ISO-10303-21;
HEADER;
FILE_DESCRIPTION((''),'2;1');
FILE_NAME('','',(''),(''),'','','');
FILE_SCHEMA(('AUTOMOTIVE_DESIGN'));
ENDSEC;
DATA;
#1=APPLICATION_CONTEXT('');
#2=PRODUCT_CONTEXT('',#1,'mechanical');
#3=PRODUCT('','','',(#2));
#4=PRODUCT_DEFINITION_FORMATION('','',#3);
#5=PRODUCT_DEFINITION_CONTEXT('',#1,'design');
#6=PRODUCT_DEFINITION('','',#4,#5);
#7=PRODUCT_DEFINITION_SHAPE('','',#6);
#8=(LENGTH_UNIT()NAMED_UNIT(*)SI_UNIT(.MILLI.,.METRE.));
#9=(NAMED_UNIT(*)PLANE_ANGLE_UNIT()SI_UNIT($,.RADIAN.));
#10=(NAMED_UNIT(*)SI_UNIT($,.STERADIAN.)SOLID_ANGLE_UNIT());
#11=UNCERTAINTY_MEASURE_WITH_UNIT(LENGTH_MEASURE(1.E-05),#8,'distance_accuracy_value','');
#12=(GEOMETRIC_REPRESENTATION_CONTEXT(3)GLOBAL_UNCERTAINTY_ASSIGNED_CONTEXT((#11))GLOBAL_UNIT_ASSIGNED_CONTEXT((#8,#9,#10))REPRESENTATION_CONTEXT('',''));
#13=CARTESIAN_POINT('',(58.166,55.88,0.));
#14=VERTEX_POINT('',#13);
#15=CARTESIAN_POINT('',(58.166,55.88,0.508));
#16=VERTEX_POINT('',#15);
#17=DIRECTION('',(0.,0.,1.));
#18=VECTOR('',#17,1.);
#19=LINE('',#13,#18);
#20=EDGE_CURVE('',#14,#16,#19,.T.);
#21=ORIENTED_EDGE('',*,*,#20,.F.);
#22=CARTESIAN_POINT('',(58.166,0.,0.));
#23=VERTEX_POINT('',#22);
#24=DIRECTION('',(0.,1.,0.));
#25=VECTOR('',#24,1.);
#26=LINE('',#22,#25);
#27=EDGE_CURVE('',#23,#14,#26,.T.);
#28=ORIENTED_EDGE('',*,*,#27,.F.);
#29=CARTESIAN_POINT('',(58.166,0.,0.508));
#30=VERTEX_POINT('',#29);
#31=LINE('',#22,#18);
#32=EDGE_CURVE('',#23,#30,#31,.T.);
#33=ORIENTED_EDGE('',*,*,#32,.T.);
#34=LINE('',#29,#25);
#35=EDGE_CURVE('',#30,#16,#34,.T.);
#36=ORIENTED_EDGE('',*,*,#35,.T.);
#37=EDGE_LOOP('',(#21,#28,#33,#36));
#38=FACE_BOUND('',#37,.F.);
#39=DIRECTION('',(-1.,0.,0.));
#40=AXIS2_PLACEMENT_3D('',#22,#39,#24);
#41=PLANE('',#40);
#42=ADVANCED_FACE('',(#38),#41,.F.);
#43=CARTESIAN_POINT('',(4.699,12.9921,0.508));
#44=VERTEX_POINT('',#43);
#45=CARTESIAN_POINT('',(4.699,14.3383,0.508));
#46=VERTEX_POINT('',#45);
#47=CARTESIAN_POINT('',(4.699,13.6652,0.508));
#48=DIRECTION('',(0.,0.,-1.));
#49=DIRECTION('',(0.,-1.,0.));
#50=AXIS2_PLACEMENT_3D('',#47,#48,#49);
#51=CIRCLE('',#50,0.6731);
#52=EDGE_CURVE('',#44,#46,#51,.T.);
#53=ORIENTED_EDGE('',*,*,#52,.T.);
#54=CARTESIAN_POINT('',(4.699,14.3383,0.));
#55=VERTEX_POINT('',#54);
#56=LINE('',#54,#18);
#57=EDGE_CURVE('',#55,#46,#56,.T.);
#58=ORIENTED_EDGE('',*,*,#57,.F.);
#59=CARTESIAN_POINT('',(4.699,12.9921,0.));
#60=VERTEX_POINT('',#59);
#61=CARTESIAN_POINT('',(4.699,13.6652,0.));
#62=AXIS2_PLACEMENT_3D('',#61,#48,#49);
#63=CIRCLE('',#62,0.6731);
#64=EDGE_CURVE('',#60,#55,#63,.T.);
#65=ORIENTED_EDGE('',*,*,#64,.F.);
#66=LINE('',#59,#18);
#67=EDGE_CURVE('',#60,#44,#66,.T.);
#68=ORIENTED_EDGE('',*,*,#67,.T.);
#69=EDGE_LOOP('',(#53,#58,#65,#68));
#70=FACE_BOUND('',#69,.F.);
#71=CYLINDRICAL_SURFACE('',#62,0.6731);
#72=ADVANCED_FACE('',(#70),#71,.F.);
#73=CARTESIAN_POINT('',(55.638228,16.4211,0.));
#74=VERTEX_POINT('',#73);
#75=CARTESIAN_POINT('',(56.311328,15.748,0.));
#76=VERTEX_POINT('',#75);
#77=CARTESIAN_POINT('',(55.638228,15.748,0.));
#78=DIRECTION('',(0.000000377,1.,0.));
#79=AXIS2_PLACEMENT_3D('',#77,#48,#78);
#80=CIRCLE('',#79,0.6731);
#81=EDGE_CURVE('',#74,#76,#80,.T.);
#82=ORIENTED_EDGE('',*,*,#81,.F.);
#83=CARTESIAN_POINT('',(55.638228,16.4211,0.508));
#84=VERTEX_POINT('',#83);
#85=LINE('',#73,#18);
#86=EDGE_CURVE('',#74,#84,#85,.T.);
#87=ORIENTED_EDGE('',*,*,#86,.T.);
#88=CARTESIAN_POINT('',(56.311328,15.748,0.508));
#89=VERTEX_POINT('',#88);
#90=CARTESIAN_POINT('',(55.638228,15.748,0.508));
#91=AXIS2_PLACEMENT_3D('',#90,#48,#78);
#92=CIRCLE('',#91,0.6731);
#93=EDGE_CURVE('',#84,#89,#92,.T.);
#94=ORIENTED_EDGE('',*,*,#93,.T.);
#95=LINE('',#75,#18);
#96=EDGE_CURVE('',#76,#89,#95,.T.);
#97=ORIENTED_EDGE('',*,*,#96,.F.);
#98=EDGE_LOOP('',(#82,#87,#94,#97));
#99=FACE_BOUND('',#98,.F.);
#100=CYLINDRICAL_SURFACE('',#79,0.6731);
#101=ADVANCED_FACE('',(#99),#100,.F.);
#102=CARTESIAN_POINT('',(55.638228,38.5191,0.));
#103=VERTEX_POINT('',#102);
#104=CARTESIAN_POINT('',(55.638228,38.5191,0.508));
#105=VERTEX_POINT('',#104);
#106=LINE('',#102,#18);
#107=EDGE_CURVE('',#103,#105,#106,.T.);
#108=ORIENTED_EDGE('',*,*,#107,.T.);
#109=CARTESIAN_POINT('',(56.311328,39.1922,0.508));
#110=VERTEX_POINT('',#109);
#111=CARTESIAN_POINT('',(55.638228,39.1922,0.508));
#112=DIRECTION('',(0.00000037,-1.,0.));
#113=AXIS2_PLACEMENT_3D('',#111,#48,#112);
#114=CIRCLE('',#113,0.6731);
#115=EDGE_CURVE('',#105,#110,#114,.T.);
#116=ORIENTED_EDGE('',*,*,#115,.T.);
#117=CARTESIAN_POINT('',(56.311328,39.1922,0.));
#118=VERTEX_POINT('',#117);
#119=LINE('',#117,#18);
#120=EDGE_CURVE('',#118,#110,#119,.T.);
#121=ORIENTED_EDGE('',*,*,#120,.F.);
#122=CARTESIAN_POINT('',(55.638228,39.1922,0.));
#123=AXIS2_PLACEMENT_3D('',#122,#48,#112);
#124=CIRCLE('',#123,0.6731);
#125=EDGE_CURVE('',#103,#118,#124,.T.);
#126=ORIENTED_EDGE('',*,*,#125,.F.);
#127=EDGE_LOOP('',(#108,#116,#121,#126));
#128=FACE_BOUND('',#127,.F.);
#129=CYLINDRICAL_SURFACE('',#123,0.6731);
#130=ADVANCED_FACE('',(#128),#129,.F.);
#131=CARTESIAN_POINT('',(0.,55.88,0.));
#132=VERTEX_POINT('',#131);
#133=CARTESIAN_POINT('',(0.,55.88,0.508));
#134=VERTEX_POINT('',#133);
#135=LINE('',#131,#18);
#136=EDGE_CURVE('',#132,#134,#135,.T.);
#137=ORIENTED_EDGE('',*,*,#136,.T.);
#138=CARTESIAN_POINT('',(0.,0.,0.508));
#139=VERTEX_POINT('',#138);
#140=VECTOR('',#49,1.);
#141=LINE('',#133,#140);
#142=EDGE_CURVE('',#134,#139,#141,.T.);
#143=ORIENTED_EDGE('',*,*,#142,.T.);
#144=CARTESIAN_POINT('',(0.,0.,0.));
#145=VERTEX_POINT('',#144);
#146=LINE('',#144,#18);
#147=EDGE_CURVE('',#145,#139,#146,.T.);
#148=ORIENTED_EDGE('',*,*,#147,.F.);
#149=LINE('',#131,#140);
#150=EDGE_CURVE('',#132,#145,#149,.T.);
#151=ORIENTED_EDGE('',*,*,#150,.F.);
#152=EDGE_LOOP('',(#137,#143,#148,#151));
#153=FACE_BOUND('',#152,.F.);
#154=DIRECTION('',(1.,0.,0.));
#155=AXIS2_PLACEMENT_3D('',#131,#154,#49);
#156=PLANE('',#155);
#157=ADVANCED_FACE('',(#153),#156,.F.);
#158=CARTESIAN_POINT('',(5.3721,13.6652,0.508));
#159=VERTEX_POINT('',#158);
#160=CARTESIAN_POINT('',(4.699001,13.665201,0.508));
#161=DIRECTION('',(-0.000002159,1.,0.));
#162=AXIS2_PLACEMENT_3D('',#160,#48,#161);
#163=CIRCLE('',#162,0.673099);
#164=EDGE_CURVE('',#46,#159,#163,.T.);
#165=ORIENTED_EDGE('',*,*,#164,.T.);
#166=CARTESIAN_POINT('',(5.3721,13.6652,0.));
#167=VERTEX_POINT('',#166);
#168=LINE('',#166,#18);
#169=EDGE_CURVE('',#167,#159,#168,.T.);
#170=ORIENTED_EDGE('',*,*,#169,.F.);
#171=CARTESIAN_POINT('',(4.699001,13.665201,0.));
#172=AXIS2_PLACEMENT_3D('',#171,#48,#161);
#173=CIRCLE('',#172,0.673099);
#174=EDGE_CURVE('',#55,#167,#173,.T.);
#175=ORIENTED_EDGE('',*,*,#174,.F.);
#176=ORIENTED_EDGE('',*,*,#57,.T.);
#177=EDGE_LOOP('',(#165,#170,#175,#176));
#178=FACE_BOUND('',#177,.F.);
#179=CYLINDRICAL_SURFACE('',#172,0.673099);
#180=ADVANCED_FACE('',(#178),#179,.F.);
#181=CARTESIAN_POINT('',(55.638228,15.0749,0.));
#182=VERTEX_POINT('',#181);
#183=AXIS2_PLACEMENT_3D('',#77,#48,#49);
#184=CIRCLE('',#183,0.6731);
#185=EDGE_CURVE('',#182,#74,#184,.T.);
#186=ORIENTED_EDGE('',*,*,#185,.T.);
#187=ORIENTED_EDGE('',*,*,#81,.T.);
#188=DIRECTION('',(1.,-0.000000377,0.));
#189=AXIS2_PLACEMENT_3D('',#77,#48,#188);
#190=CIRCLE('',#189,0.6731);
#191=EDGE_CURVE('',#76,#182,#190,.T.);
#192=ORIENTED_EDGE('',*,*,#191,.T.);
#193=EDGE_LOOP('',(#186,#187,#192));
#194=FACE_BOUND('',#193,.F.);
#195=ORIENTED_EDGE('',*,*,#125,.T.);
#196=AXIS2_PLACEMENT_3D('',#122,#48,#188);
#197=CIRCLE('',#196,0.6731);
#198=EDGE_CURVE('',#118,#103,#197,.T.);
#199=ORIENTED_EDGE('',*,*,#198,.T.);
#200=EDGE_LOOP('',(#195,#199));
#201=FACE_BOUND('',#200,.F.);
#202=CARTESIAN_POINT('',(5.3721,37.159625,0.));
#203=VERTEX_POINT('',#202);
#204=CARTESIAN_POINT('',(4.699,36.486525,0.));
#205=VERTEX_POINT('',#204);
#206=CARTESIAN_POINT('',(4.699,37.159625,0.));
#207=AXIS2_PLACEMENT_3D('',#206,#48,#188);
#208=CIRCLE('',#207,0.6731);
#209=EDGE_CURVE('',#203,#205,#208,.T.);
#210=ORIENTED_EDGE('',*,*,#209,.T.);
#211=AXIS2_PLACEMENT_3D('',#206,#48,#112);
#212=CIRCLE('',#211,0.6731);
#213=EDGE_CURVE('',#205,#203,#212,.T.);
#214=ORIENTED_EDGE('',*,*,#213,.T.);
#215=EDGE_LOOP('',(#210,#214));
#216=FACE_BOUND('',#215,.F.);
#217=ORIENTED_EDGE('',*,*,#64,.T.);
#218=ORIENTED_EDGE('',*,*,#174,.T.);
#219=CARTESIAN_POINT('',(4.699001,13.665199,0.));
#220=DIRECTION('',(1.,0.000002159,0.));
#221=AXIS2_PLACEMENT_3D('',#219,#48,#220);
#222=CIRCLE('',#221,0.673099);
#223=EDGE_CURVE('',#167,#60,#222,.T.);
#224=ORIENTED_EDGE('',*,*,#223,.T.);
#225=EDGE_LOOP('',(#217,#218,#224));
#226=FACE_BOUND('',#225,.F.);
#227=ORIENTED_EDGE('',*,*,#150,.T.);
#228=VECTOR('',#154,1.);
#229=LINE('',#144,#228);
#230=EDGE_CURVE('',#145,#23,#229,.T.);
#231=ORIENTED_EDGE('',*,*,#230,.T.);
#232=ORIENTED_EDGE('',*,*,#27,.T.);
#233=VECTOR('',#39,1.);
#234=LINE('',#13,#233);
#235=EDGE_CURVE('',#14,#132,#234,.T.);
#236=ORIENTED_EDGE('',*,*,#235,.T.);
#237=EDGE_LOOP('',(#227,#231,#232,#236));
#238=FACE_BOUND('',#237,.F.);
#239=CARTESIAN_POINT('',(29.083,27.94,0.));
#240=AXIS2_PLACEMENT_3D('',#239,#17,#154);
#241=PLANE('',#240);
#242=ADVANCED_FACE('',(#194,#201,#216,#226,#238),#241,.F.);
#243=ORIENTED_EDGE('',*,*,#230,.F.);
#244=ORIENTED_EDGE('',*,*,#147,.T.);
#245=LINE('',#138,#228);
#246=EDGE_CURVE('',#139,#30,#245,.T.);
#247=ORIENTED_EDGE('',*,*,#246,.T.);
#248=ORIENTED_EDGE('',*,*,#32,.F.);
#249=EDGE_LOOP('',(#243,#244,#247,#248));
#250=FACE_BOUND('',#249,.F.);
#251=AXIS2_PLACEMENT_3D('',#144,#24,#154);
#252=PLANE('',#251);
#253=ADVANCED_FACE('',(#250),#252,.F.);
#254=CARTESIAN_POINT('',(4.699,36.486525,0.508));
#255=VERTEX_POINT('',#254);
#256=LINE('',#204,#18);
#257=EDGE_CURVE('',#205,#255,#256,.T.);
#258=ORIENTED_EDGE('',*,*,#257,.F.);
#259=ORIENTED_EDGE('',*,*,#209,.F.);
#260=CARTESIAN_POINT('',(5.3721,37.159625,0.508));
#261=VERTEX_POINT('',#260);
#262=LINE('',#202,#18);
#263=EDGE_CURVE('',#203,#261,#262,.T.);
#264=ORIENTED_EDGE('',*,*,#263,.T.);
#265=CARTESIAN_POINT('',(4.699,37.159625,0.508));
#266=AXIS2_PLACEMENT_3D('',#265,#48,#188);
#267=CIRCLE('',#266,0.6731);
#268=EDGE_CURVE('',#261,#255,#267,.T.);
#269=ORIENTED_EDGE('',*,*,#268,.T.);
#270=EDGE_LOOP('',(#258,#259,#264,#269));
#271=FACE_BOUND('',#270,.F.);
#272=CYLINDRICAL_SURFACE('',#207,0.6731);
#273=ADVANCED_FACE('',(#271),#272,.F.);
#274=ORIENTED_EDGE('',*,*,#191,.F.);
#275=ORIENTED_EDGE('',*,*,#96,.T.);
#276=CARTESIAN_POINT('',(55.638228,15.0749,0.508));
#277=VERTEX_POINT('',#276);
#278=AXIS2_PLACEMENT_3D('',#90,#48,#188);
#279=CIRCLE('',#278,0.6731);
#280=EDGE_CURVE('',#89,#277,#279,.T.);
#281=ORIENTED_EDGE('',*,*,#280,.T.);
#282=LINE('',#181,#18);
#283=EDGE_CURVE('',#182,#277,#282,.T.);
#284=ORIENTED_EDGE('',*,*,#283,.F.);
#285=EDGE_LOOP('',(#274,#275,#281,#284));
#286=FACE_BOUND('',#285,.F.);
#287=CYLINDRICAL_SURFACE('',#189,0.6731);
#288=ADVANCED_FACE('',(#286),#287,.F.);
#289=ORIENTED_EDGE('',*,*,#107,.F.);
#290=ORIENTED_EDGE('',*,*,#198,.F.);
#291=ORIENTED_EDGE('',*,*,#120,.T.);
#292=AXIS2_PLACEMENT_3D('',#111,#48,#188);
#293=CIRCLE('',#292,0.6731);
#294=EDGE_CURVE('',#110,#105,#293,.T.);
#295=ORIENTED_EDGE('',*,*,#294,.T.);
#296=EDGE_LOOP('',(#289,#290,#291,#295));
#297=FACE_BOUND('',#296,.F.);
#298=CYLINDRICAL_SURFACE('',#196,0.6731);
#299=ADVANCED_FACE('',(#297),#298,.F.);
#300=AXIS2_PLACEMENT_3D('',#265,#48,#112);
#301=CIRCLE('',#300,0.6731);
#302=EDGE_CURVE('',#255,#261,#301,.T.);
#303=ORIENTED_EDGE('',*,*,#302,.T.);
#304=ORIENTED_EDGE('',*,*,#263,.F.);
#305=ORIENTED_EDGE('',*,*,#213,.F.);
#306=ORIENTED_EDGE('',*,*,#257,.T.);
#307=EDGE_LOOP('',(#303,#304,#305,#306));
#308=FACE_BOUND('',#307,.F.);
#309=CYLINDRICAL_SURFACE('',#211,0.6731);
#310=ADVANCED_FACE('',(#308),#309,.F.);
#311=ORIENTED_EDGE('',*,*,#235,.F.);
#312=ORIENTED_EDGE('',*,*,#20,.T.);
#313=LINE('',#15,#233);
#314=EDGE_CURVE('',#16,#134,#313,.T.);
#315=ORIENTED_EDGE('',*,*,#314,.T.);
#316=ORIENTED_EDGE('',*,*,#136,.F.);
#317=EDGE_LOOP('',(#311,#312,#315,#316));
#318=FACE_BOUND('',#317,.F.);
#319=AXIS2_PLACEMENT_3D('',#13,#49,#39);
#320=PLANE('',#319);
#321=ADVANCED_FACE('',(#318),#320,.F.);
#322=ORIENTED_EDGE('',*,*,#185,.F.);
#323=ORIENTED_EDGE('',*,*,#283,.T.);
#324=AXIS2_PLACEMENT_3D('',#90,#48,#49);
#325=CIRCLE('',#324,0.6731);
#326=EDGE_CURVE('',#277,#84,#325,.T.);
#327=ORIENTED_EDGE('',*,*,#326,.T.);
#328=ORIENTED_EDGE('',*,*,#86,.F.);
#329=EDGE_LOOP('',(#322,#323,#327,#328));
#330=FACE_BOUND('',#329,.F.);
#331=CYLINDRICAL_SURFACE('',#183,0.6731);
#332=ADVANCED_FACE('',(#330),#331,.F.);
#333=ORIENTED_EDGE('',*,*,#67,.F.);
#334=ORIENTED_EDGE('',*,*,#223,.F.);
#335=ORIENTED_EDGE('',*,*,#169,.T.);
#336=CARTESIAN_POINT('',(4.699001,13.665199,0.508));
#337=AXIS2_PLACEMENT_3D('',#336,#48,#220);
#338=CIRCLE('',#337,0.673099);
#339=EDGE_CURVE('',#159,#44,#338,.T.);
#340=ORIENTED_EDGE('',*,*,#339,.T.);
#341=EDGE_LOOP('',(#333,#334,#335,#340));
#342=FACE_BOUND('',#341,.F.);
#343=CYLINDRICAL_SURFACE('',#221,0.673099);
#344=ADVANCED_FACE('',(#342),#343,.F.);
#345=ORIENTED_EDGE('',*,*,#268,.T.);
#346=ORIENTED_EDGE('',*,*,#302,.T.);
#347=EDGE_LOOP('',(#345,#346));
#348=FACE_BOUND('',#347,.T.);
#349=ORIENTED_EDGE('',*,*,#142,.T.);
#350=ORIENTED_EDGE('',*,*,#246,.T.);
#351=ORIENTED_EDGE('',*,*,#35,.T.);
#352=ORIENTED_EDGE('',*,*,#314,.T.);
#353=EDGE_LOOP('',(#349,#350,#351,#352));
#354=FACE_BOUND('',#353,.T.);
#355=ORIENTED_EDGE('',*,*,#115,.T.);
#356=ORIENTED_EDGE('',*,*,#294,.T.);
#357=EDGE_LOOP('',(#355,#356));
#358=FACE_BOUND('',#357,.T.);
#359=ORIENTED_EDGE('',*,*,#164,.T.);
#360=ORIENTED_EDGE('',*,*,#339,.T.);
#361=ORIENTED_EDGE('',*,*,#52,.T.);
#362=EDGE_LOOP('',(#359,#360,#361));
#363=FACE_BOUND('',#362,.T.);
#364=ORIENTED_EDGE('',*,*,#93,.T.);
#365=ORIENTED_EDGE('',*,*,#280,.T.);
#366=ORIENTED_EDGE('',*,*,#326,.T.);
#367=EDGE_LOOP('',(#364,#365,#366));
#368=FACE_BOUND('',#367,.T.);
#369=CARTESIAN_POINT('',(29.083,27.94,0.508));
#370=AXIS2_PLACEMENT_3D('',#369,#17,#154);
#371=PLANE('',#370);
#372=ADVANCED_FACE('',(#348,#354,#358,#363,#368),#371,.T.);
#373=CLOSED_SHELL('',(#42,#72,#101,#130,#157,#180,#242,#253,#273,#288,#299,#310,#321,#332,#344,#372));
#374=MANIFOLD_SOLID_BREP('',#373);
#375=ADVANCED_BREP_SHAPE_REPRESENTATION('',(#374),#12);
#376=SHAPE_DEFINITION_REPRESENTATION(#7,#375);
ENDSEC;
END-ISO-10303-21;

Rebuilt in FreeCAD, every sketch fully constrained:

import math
import FreeCAD as App
import Part
import Sketcher
from FreeCAD import Vector
Q = App.Units.Quantity


def add_polygon(sketch, points):
    """Adds a closed chain of lines whose ends are joined by coincident constraints."""
    first, n = sketch.GeometryCount, len(points)
    for a, b in zip(points, points[1:] + points[:1]):
        sketch.addGeometry(Part.LineSegment(App.Vector(*a, 0), App.Vector(*b, 0)), False)
    for i in range(n):
        sketch.addConstraint(Sketcher.Constraint("Coincident", first + i, 2, first + (i + 1) % n, 1))

doc = App.newDocument("Part")
body = doc.addObject("PartDesign::Body", "Body")

# Sketch on XY plane
sketch1 = body.newObject("Sketcher::SketchObject", "Sketch")
sketch1.AttachmentSupport = (doc.getObject("XY_Plane"), [""])
sketch1.MapMode = "FlatFace"
add_polygon(sketch1, [(0, 55.9), (0, 0), (58.2, 0), (58.2, 55.9)])  # lines 0-3
sketch1.addGeometry(Part.ArcOfCircle(Part.Circle(Vector(4.7, 13.7, 0), Vector(0, 0, 1), 0.7), math.radians(0), math.radians(90)), False)  # 4
sketch1.addGeometry(Part.ArcOfCircle(Part.Circle(Vector(4.7, 13.7, 0), Vector(0, 0, 1), 0.7), math.radians(-90), math.radians(0)), False)  # 5
sketch1.addGeometry(Part.ArcOfCircle(Part.Circle(Vector(4.7, 13.7, 0), Vector(0, 0, 1), 0.7), math.radians(90), math.radians(270)), False)  # 6
sketch1.addGeometry(Part.ArcOfCircle(Part.Circle(Vector(55.6, 15.7, 0), Vector(0, 0, 1), 0.7), math.radians(0), math.radians(90)), False)  # 7
sketch1.addGeometry(Part.ArcOfCircle(Part.Circle(Vector(55.6, 15.7, 0), Vector(0, 0, 1), 0.7), math.radians(-90), math.radians(0)), False)  # 8
sketch1.addGeometry(Part.ArcOfCircle(Part.Circle(Vector(55.6, 15.7, 0), Vector(0, 0, 1), 0.7), math.radians(90), math.radians(270)), False)  # 9
sketch1.addGeometry(Part.ArcOfCircle(Part.Circle(Vector(4.7, 37.2, 0), Vector(0, 0, 1), 0.7), math.radians(0), math.radians(270)), False)  # 10
sketch1.addGeometry(Part.ArcOfCircle(Part.Circle(Vector(4.7, 37.2, 0), Vector(0, 0, 1), 0.7), math.radians(-90), math.radians(0)), False)  # 11
sketch1.addGeometry(Part.ArcOfCircle(Part.Circle(Vector(55.6, 39.2, 0), Vector(0, 0, 1), 0.7), math.radians(0), math.radians(270)), False)  # 12
sketch1.addGeometry(Part.ArcOfCircle(Part.Circle(Vector(55.6, 39.2, 0), Vector(0, 0, 1), 0.7), math.radians(-90), math.radians(0)), False)  # 13
sketch1.addConstraint([
    Sketcher.Constraint("Coincident", 4, 1, 5, 2),
    Sketcher.Constraint("Coincident", 5, 1, 6, 2),
    Sketcher.Constraint("Coincident", 6, 1, 4, 2),
    Sketcher.Constraint("Tangent", 7, 1, 8, 2),
    Sketcher.Constraint("Tangent", 8, 1, 9, 2),
    Sketcher.Constraint("Tangent", 9, 1, 7, 2),
    Sketcher.Constraint("Tangent", 10, 1, 11, 2),
    Sketcher.Constraint("Coincident", 11, 1, 10, 2),
    Sketcher.Constraint("Tangent", 12, 1, 13, 2),
    Sketcher.Constraint("Coincident", 13, 1, 12, 2),
    Sketcher.Constraint("Vertical", 0),
    Sketcher.Constraint("Horizontal", 1),
    Sketcher.Constraint("Vertical", 2),
    Sketcher.Constraint("Horizontal", 3),
    Sketcher.Constraint("Coincident", 0, 2, -1, 1),
    Sketcher.Constraint("Coincident", 5, 3, 4, 3),
    Sketcher.Constraint("Equal", 6, 7),
    Sketcher.Constraint("Equal", 9, 10),
    Sketcher.Constraint("Equal", 11, 12),
    Sketcher.Constraint("Horizontal", 6, 3, 4, 1),
    Sketcher.Constraint("Horizontal", 9, 3, 7, 1),
    Sketcher.Constraint("Horizontal", 11, 3, 10, 1),
    Sketcher.Constraint("Horizontal", 13, 3, 12, 1),
    Sketcher.Constraint("Vertical", 6, 3, 10, 3),
    Sketcher.Constraint("Vertical", 9, 3, 12, 3),
    Sketcher.Constraint("Vertical", 11, 3, 5, 1),
    Sketcher.Constraint("Vertical", 5, 1, 6, 1),
    Sketcher.Constraint("Vertical", 13, 3, 8, 1),
    Sketcher.Constraint("Vertical", 8, 1, 9, 1),
    Sketcher.Constraint("Vertical", 4, 1, 10, 1),
    Sketcher.Constraint("Vertical", 6, 1, 11, 1),
    Sketcher.Constraint("Vertical", 9, 1, 13, 1),
    Sketcher.Constraint("DistanceY", 0, 2, 0, 1, Q("2.2 in")),
    Sketcher.Constraint("DistanceX", 1, 1, 1, 2, Q("2.29 in")),
    Sketcher.Constraint("Radius", 4, Q("0.0264999 in")),
    Sketcher.Constraint("DistanceY", -1, 1, 7, 3, Q("0.62 in")),
    Sketcher.Constraint("DistanceY", 9, 1, 13, 1, Q("0.87 in")),
    Sketcher.Constraint("DistanceX", -1, 1, 4, 3, Q("0.1850001 in")),
    Sketcher.Constraint("DistanceY", -1, 1, 4, 3, Q("0.5380001 in")),
    Sketcher.Constraint("DistanceX", 11, 3, 12, 3, 50.939228),
    Sketcher.Constraint("DistanceY", -1, 1, 10, 3, 37.159625),
])
pad1 = body.newObject("PartDesign::Pad", "Pad")
pad1.Profile = sketch1
pad1.Length = Q("0.02 in")

doc.recompute()
